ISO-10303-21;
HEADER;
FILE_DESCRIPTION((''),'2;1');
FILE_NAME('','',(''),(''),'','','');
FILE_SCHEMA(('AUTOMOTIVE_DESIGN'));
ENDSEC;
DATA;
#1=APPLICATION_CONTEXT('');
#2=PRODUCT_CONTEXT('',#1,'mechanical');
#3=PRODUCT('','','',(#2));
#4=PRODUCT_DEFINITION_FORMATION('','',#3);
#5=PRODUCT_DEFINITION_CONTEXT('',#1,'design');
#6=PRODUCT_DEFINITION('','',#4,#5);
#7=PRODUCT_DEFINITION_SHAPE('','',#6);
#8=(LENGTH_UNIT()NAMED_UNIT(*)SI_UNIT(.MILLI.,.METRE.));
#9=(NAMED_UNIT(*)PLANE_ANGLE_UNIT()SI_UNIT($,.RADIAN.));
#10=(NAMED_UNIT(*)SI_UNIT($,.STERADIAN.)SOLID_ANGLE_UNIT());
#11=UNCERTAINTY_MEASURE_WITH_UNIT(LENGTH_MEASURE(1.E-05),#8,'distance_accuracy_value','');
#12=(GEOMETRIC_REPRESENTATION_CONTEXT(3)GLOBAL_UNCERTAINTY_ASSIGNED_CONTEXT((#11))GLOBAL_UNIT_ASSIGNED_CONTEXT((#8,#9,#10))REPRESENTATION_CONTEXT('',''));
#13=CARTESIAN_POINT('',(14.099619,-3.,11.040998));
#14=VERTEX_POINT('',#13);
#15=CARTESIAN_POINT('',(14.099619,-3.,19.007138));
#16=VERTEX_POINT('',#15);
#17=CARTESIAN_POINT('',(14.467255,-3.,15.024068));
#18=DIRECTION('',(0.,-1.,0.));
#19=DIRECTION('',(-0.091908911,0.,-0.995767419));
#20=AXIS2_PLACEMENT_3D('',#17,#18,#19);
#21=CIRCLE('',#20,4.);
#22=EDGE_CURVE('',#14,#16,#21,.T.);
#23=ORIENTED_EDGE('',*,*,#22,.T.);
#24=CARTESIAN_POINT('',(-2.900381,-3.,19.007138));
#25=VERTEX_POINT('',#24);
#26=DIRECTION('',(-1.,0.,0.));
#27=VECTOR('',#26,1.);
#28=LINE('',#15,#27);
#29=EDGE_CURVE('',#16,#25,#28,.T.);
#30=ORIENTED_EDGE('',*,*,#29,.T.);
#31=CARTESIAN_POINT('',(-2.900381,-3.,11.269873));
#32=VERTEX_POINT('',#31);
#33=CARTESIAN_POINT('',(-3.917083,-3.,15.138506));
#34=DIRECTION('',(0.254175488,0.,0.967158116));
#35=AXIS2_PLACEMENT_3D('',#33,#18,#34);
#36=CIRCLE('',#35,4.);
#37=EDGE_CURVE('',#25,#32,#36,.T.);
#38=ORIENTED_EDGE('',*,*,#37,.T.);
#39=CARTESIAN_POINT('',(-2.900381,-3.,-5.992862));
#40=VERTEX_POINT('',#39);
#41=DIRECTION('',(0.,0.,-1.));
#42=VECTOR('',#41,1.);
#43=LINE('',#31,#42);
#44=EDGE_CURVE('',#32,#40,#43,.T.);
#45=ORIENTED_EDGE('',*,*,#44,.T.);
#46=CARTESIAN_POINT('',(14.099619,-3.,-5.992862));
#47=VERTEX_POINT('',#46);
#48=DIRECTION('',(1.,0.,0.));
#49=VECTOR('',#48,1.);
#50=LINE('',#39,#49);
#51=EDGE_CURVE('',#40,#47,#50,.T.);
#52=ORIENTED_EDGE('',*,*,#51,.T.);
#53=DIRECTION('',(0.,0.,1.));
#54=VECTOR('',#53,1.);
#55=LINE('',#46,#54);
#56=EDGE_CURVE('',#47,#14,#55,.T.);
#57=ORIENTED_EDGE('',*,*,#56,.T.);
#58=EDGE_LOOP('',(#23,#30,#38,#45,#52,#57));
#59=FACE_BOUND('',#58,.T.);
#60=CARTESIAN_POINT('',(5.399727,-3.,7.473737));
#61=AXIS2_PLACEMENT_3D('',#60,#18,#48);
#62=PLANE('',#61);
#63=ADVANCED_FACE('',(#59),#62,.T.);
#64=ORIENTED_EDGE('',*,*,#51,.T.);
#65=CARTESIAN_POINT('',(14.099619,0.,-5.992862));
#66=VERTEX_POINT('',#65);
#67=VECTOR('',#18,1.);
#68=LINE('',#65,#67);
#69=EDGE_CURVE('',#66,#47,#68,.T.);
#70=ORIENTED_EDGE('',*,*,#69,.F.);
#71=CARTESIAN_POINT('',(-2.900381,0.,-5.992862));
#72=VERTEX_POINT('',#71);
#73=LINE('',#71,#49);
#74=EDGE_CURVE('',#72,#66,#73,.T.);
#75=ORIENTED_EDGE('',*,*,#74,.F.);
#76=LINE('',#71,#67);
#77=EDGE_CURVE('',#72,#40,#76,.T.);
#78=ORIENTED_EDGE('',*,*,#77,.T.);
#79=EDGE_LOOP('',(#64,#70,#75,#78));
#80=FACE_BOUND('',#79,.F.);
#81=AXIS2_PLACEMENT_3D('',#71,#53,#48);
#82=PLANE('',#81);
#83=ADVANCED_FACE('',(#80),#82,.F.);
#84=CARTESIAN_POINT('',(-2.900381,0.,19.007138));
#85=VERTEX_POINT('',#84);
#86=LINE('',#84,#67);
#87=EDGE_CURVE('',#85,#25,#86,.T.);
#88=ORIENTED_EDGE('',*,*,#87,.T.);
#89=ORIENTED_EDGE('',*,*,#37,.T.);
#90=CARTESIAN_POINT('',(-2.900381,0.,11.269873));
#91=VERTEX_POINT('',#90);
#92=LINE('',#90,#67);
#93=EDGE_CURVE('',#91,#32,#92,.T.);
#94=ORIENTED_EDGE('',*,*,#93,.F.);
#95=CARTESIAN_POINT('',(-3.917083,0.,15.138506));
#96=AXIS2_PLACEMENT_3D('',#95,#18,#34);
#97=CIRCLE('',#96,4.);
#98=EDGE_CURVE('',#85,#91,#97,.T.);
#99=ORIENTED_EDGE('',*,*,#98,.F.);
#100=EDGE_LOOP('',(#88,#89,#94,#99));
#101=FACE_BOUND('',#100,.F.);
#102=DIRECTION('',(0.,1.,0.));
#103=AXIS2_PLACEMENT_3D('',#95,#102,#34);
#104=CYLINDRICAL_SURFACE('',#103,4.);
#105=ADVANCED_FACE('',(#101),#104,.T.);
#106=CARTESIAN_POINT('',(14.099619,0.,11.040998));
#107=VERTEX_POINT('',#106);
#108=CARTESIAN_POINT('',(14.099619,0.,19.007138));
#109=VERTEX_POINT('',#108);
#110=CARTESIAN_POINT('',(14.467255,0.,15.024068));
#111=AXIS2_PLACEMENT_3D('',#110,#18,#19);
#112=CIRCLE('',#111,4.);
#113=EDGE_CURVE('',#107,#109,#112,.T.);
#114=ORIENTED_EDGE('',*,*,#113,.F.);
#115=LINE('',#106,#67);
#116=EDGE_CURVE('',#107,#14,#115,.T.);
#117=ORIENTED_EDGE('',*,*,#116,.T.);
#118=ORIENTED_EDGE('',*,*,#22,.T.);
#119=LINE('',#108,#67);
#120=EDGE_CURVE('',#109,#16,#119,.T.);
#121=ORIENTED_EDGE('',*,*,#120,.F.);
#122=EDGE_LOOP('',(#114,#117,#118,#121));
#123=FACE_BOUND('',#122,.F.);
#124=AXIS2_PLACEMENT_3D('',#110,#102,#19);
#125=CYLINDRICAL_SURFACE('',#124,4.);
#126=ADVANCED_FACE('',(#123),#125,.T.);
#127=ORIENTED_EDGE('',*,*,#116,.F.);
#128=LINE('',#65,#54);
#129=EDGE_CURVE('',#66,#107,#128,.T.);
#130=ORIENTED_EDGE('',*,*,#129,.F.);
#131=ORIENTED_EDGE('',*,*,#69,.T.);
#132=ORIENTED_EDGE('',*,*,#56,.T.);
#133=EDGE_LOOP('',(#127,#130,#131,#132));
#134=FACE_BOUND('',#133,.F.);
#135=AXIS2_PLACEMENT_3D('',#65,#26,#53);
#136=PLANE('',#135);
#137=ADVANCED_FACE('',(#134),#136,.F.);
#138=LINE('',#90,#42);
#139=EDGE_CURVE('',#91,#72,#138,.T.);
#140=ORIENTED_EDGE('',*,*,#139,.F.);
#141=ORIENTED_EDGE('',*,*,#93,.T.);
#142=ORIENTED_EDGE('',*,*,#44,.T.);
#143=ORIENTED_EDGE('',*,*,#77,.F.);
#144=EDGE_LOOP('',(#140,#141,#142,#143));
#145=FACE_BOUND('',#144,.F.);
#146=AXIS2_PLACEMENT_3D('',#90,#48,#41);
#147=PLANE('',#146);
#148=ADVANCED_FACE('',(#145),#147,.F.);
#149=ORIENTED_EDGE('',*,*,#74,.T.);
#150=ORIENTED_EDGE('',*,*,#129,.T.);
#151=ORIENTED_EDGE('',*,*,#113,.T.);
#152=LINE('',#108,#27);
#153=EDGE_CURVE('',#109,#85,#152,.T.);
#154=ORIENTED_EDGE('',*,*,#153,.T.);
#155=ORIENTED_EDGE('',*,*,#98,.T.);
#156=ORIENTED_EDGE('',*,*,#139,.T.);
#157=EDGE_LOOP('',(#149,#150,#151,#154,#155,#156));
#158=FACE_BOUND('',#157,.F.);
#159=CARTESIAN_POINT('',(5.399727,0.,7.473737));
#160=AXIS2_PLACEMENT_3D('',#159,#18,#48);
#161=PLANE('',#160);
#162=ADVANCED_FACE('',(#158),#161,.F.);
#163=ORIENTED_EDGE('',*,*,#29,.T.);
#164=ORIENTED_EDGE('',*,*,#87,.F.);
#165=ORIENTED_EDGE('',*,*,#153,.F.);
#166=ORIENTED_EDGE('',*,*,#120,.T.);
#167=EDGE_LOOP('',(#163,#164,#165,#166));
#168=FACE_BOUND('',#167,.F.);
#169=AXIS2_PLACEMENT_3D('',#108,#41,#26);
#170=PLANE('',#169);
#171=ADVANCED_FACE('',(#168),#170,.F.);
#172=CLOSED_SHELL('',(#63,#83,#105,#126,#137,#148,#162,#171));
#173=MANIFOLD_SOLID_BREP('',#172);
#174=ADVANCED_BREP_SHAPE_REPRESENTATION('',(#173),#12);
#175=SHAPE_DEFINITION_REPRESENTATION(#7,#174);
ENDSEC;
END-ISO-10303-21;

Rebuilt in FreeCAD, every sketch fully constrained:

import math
import FreeCAD as App
import Part
import Sketcher
from FreeCAD import Vector

doc = App.newDocument("Part")
body = doc.addObject("PartDesign::Body", "Body")

sketch1 = body.newObject("Sketcher::SketchObject", "Sketch")
sketch1.AttachmentSupport = (doc.getObject("XZ_Plane"), [""])
sketch1.MapMode = "FlatFace"
sketch1.addGeometry(Part.ArcOfCircle(Part.Circle(Vector(-3.9, 15.1, 0), Vector(0, 0, 1), 4), math.radians(75), math.radians(285)), False)
sketch1.addGeometry(Part.LineSegment(Vector(-2.9, 11.3, 0), Vector(-2.9, -6, 0)), False)
sketch1.addGeometry(Part.LineSegment(Vector(-2.9, -6, 0), Vector(14.1, -6, 0)), False)
sketch1.addGeometry(Part.LineSegment(Vector(14.1, -6, 0), Vector(14.1, 11, 0)), False)
sketch1.addGeometry(Part.ArcOfCircle(Part.Circle(Vector(14.5, 15, 0), Vector(0, 0, 1), 4), math.radians(-95), math.radians(95)), False)
sketch1.addGeometry(Part.LineSegment(Vector(14.1, 19, 0), Vector(-2.9, 19, 0)), False)
sketch1.addConstraint(Sketcher.Constraint("Coincident", 0, 2, 1, 1))
sketch1.addConstraint(Sketcher.Constraint("Coincident", 1, 2, 2, 1))
sketch1.addConstraint(Sketcher.Constraint("Coincident", 2, 2, 3, 1))
sketch1.addConstraint(Sketcher.Constraint("Coincident", 3, 2, 4, 1))
sketch1.addConstraint(Sketcher.Constraint("Coincident", 4, 2, 5, 1))
sketch1.addConstraint(Sketcher.Constraint("Coincident", 5, 2, 0, 1))
sketch1.addConstraint(Sketcher.Constraint("Vertical", 1))
sketch1.addConstraint(Sketcher.Constraint("Horizontal", 2))
sketch1.addConstraint(Sketcher.Constraint("Vertical", 3))
sketch1.addConstraint(Sketcher.Constraint("Horizontal", 5))
sketch1.addConstraint(Sketcher.Constraint("Equal", 0, 4))
sketch1.addConstraint(Sketcher.Constraint("Vertical", 3, 2, 4, 2))
sketch1.addConstraint(Sketcher.Constraint("Vertical", 1, 2, 5, 2))
sketch1.addConstraint(Sketcher.Constraint("Radius", 0, 4.0))
sketch1.addConstraint(Sketcher.Constraint("DistanceX", 2, 1, 2, 2, 17.0))
sketch1.addConstraint(Sketcher.Constraint("DistanceY", 2, 2, 4, 2, 25.0))
sketch1.addConstraint(Sketcher.Constraint("DistanceY", 3, 1, 3, 2, 17.03386))
sketch1.addConstraint(Sketcher.Constraint("DistanceX", 0, 3, 0, 2, 1.016702))
sketch1.addConstraint(Sketcher.Constraint("DistanceX", 0, 2, -1, 1, 2.900381))
sketch1.addConstraint(Sketcher.Constraint("DistanceY", 1, 2, -1, 1, 5.992862))
pad1 = body.newObject("PartDesign::Pad", "Pad")
pad1.Profile = sketch1
pad1.Length = 3

doc.recompute()
